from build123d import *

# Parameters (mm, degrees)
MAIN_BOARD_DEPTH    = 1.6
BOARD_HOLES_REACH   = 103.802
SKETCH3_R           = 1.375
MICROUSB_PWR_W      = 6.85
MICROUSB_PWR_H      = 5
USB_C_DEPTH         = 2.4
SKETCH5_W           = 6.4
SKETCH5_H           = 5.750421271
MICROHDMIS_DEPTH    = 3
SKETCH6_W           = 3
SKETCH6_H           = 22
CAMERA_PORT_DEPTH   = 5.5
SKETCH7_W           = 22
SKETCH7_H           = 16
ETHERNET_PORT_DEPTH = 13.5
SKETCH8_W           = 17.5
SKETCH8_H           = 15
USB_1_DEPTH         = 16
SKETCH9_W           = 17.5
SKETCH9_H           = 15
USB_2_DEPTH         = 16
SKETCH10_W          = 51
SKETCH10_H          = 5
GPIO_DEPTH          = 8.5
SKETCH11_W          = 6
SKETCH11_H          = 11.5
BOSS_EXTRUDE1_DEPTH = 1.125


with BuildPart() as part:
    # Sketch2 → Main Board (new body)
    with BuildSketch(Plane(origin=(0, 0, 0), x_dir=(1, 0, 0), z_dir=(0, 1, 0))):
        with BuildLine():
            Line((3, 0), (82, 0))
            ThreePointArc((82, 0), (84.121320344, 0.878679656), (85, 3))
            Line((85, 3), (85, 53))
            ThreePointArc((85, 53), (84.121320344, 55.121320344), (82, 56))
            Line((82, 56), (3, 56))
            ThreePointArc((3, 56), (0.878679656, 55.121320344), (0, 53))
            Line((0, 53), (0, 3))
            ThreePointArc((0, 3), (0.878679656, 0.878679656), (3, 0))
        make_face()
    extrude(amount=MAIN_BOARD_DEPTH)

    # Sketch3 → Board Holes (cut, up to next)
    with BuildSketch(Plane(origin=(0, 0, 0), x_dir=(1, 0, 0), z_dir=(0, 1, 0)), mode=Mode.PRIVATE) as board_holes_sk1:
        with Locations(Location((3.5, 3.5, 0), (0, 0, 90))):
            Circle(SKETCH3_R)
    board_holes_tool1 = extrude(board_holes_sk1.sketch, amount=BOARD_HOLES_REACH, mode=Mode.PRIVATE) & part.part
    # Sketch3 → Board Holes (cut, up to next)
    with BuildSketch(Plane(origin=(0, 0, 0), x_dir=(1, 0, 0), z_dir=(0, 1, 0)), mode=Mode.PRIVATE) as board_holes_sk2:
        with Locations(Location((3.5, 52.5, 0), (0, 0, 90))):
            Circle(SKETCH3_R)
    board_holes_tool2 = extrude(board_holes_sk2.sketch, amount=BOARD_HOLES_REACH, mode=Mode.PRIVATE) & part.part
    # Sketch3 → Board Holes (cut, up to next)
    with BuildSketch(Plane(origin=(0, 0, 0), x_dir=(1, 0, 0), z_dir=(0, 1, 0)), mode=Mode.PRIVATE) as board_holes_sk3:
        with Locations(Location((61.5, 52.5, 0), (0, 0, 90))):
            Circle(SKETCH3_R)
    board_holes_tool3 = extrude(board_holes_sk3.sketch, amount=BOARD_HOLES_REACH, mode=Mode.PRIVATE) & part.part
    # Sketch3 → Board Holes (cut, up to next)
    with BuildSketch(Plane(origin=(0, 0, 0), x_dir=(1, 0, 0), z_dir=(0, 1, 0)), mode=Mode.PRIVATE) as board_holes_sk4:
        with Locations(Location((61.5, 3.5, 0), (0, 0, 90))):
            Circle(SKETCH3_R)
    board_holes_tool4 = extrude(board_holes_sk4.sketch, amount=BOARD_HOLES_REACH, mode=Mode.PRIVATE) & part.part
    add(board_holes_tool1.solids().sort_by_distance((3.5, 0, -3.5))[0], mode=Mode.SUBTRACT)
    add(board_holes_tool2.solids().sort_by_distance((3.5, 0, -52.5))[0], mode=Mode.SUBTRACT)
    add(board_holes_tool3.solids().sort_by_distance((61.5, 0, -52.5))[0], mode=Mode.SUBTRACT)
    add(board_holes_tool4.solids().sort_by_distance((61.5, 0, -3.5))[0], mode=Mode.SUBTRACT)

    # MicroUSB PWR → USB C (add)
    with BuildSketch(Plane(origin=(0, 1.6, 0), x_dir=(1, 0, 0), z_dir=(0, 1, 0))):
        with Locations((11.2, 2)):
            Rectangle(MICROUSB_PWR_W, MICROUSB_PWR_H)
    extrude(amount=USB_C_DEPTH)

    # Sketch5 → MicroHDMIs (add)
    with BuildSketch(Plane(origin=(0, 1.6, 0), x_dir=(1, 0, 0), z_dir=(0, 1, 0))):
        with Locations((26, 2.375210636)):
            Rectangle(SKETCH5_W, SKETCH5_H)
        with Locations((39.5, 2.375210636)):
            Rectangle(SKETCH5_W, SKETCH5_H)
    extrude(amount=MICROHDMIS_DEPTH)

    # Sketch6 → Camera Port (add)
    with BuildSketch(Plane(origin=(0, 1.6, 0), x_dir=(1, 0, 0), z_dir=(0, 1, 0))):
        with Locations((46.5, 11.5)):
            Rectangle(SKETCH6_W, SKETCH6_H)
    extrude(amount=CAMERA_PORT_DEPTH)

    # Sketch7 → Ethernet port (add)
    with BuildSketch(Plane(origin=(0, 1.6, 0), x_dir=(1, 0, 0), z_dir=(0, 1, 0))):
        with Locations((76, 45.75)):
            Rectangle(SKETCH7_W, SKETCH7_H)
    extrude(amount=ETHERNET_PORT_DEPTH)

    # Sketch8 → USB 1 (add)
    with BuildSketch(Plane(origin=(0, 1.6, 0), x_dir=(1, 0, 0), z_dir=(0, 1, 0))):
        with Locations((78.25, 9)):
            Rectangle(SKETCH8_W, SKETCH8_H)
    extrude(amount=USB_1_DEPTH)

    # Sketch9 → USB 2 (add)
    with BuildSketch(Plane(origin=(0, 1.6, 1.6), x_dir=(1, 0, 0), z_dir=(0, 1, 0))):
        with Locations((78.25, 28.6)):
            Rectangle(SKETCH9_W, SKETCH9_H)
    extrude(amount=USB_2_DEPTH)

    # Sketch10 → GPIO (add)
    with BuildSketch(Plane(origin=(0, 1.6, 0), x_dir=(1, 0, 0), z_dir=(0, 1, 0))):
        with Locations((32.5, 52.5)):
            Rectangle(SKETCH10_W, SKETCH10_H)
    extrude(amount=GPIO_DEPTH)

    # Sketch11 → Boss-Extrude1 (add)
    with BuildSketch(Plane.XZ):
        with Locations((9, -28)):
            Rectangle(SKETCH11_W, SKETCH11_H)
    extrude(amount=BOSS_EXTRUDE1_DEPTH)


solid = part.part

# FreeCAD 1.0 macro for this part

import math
import FreeCAD as App
import Part
import Sketcher

doc = App.newDocument("Part")
params = doc.addObject("Spreadsheet::Sheet", "Params")
for row, (alias, value) in enumerate([
    ("sketch1_radius", "3 mm"),
    ("sketch1_width", "79 mm"),
    ("sketch1_height", "50 mm"),
    ("pad1_length", "1.6 mm"),
    ("sketch2_diameter", "2.75 mm"),
    ("sketch3_diameter", "2.75 mm"),
    ("sketch4_diameter", "2.75 mm"),
    ("sketch5_diameter", "2.75 mm"),
    ("sketch6_height", "5 mm"),
    ("sketch6_width", "6.85 mm"),
    ("pad2_length", "2.4 mm"),
    ("sketch7_width", "6.4 mm"),
    ("pad3_length", "3 mm"),
    ("sketch8_width", "3 mm"),
    ("sketch8_height", "22 mm"),
    ("pad4_length", "5.5 mm"),
    ("sketch9_width", "22 mm"),
    ("sketch9_height", "16 mm"),
    ("pad5_length", "13.5 mm"),
    ("sketch10_height", "15 mm"),
    ("sketch10_width", "17.5 mm"),
    ("pad6_length", "16 mm"),
    ("sketch11_height", "15 mm"),
    ("sketch11_width", "17.5 mm"),
    ("pad7_length", "16 mm"),
    ("sketch12_width", "51 mm"),
    ("sketch12_height", "5 mm"),
    ("pad8_length", "8.5 mm"),
    ("sketch13_width", "6 mm"),
    ("sketch13_height", "11.5 mm"),
    ("pad9_length", "1.125 mm"),
], start=1):
    params.set(f"A{row}", alias)
    params.set(f"B{row}", "=" + value)
    params.setAlias(f"B{row}", alias)

body = doc.addObject("PartDesign::Body", "Body")

sketch1 = body.newObject("Sketcher::SketchObject", "Sketch")
sketch1.AttachmentSupport = (doc.getObject("XZ_Plane"), [""])
sketch1.MapMode = "FlatFace"
sketch1.addGeometry([
    Part.LineSegment(App.Vector(3, 0, 0), App.Vector(82, 0, 0)),
    Part.ArcOfCircle(Part.Circle(App.Vector(82, -3, 0), App.Vector(0, 0, 1), 3), math.radians(0), math.radians(90)),
    Part.LineSegment(App.Vector(85, -3, 0), App.Vector(85, -53, 0)),
    Part.ArcOfCircle(Part.Circle(App.Vector(82, -53, 0), App.Vector(0, 0, 1), 3), math.radians(-90), math.radians(0)),
    Part.LineSegment(App.Vector(82, -56, 0), App.Vector(3, -56, 0)),
    Part.ArcOfCircle(Part.Circle(App.Vector(3, -53, 0), App.Vector(0, 0, 1), 3), math.radians(180), math.radians(270)),
    Part.LineSegment(App.Vector(0, -53, 0), App.Vector(0, -3, 0)),
    Part.ArcOfCircle(Part.Circle(App.Vector(3, -3, 0), App.Vector(0, 0, 1), 3), math.radians(90), math.radians(180)),
], False)
sketch1.addConstraint([
    Sketcher.Constraint("Tangent", 0, 2, 1, 2),
    Sketcher.Constraint("Tangent", 1, 1, 2, 1),
    Sketcher.Constraint("Tangent", 2, 2, 3, 2),
    Sketcher.Constraint("Tangent", 3, 1, 4, 1),
    Sketcher.Constraint("Tangent", 4, 2, 5, 2),
    Sketcher.Constraint("Tangent", 5, 1, 6, 1),
    Sketcher.Constraint("Tangent", 6, 2, 7, 2),
    Sketcher.Constraint("Tangent", 7, 1, 0, 1),
    Sketcher.Constraint("Horizontal", 0),
    Sketcher.Constraint("Vertical", 2),
    Sketcher.Constraint("Horizontal", 4),
    Sketcher.Constraint("Vertical", 6),
    Sketcher.Constraint("Equal", 1, 3),
    Sketcher.Constraint("Equal", 3, 5),
    Sketcher.Constraint("Equal", 5, 7),
    Sketcher.Constraint("PointOnObject", 0, 2, -1),
    Sketcher.Constraint("PointOnObject", 5, 1, -2),
    Sketcher.Constraint("Radius", 1, 3.0),
    Sketcher.Constraint("DistanceX", 0, 1, 0, 2, 79.0),
    Sketcher.Constraint("DistanceY", 2, 2, 2, 1, 50.0),
])
sketch1.setExpression("Constraints[17]", "Params.sketch1_radius")
sketch1.setExpression("Constraints[18]", "Params.sketch1_width")
sketch1.setExpression("Constraints[19]", "Params.sketch1_height")
pad1 = body.newObject("PartDesign::Pad", "Pad")
pad1.Profile = sketch1
pad1.setExpression("Length", "Params.pad1_length")
pad1.Reversed = True

sketch2 = body.newObject("Sketcher::SketchObject", "Sketch001")
sketch2.AttachmentSupport = (doc.getObject("XZ_Plane"), [""])
sketch2.MapMode = "FlatFace"
sketch2.addGeometry(Part.Circle(App.Vector(3.5, -3.5, 0), App.Vector(0, 0, 1), 1.4), False)
sketch2.addConstraint([
    Sketcher.Constraint("Diameter", 0, 2.75),
    Sketcher.Constraint("DistanceX", -1, 1, 0, 3, 3.5),
    Sketcher.Constraint("DistanceY", 0, 3, -1, 1, 3.5),
])
sketch2.setExpression("Constraints[0]", "Params.sketch2_diameter")
pocket1 = body.newObject("PartDesign::Pocket", "Pocket")
pocket1.Profile = sketch2
pocket1.Type = "UpToFirst"

sketch3 = body.newObject("Sketcher::SketchObject", "Sketch002")
sketch3.AttachmentSupport = (doc.getObject("XZ_Plane"), [""])
sketch3.MapMode = "FlatFace"
sketch3.addGeometry(Part.Circle(App.Vector(3.5, -52.5, 0), App.Vector(0, 0, 1), 1.4), False)
sketch3.addConstraint([
    Sketcher.Constraint("Diameter", 0, 2.75),
    Sketcher.Constraint("DistanceX", -1, 1, 0, 3, 3.5),
    Sketcher.Constraint("DistanceY", 0, 3, -1, 1, 52.5),
])
sketch3.setExpression("Constraints[0]", "Params.sketch3_diameter")
pocket2 = body.newObject("PartDesign::Pocket", "Pocket001")
pocket2.Profile = sketch3
pocket2.Type = "UpToFirst"

sketch4 = body.newObject("Sketcher::SketchObject", "Sketch003")
sketch4.AttachmentSupport = (doc.getObject("XZ_Plane"), [""])
sketch4.MapMode = "FlatFace"
sketch4.addGeometry(Part.Circle(App.Vector(61.5, -52.5, 0), App.Vector(0, 0, 1), 1.4), False)
sketch4.addConstraint([
    Sketcher.Constraint("Diameter", 0, 2.75),
    Sketcher.Constraint("DistanceX", -1, 1, 0, 3, 61.5),
    Sketcher.Constraint("DistanceY", 0, 3, -1, 1, 52.5),
])
sketch4.setExpression("Constraints[0]", "Params.sketch4_diameter")
pocket3 = body.newObject("PartDesign::Pocket", "Pocket002")
pocket3.Profile = sketch4
pocket3.Type = "UpToFirst"

sketch5 = body.newObject("Sketcher::SketchObject", "Sketch004")
sketch5.AttachmentSupport = (doc.getObject("XZ_Plane"), [""])
sketch5.MapMode = "FlatFace"
sketch5.addGeometry(Part.Circle(App.Vector(61.5, -3.5, 0), App.Vector(0, 0, 1), 1.4), False)
sketch5.addConstraint([
    Sketcher.Constraint("Diameter", 0, 2.75),
    Sketcher.Constraint("DistanceX", -1, 1, 0, 3, 61.5),
    Sketcher.Constraint("DistanceY", 0, 3, -1, 1, 3.5),
])
sketch5.setExpression("Constraints[0]", "Params.sketch5_diameter")
pocket4 = body.newObject("PartDesign::Pocket", "Pocket003")
pocket4.Profile = sketch5
pocket4.Type = "UpToFirst"

sketch6 = body.newObject("Sketcher::SketchObject", "Sketch005")
sketch6.AttachmentSupport = (doc.getObject("XZ_Plane"), [""])
sketch6.MapMode = "FlatFace"
sketch6.AttachmentOffset = App.Placement(App.Vector(0, 0, -1.6), App.Rotation())
sketch6.addGeometry([
    Part.LineSegment(App.Vector(8, -4, 0), App.Vector(8, 0, 0)),
    Part.LineSegment(App.Vector(8, 0, 0), App.Vector(15, 0, 0)),
    Part.LineSegment(App.Vector(15, 0, 0), App.Vector(15, -4, 0)),
    Part.LineSegment(App.Vector(15, -4, 0), App.Vector(8, -4, 0)),
], False)
sketch6.addConstraint([
    Sketcher.Constraint("Coincident", 0, 2, 1, 1),
    Sketcher.Constraint("Coincident", 1, 2, 2, 1),
    Sketcher.Constraint("Coincident", 2, 2, 3, 1),
    Sketcher.Constraint("Coincident", 3, 2, 0, 1),
    Sketcher.Constraint("Vertical", 0),
    Sketcher.Constraint("Horizontal", 1),
    Sketcher.Constraint("Vertical", 2),
    Sketcher.Constraint("Horizontal", 3),
    Sketcher.Constraint("DistanceY", 0, 1, 0, 2, 5.0),
    Sketcher.Constraint("DistanceX", 1, 1, 1, 2, 6.85),
    Sketcher.Constraint("DistanceY", -1, 1, 0, 2, 0.5),
    Sketcher.Constraint("DistanceX", -1, 1, 0, 2, 7.775),
])
sketch6.setExpression("Constraints[8]", "Params.sketch6_height")
sketch6.setExpression("Constraints[9]", "Params.sketch6_width")
pad2 = body.newObject("PartDesign::Pad", "Pad001")
pad2.Profile = sketch6
pad2.setExpression("Length", "Params.pad2_length")
pad2.Reversed = True

sketch7 = body.newObject("Sketcher::SketchObject", "Sketch006")
sketch7.AttachmentSupport = (doc.getObject("XZ_Plane"), [""])
sketch7.MapMode = "FlatFace"
sketch7.AttachmentOffset = App.Placement(App.Vector(0, 0, -1.6), App.Rotation())
sketch7.addGeometry([
    Part.LineSegment(App.Vector(23, -5, 0), App.Vector(23, 0, 0)),
    Part.LineSegment(App.Vector(23, 0, 0), App.Vector(29, 0, 0)),
    Part.LineSegment(App.Vector(29, 0, 0), App.Vector(29, -5, 0)),
    Part.LineSegment(App.Vector(29, -5, 0), App.Vector(23, -5, 0)),
    Part.LineSegment(App.Vector(36, -5, 0), App.Vector(36, 0, 0)),
    Part.LineSegment(App.Vector(36, 0, 0), App.Vector(43, 0, 0)),
    Part.LineSegment(App.Vector(43, 0, 0), App.Vector(43, -5, 0)),
    Part.LineSegment(App.Vector(43, -5, 0), App.Vector(36, -5, 0)),
], False)
sketch7.addConstraint([
    Sketcher.Constraint("Coincident", 0, 2, 1, 1),
    Sketcher.Constraint("Coincident", 1, 2, 2, 1),
    Sketcher.Constraint("Coincident", 2, 2, 3, 1),
    Sketcher.Constraint("Coincident", 3, 2, 0, 1),
    Sketcher.Constraint("Coincident", 4, 2, 5, 1),
    Sketcher.Constraint("Coincident", 5, 2, 6, 1),
    Sketcher.Constraint("Coincident", 6, 2, 7, 1),
    Sketcher.Constraint("Coincident", 7, 2, 4, 1),
    Sketcher.Constraint("Vertical", 0),
    Sketcher.Constraint("Horizontal", 1),
    Sketcher.Constraint("Vertical", 2),
    Sketcher.Constraint("Horizontal", 3),
    Sketcher.Constraint("Vertical", 4),
    Sketcher.Constraint("Horizontal", 5),
    Sketcher.Constraint("Vertical", 6),
    Sketcher.Constraint("Horizontal", 7),
    Sketcher.Constraint("Horizontal", 1, 2, 4, 2),
    Sketcher.Constraint("Horizontal", 3, 2, 6, 2),
    Sketcher.Constraint("Equal", 3, 5),
    Sketcher.Constraint("DistanceX", 1, 1, 1, 2, 6.4),
    Sketcher.Constraint("DistanceX", -1, 1, 0, 2, 22.8),
    Sketcher.Constraint("DistanceY", -1, 1, 0, 2, 0.5),
    Sketcher.Constraint("DistanceX", -1, 1, 4, 2, 36.3),
    Sketcher.Constraint("DistanceY", 0, 1, 0, 2, 5.750421),
])
sketch7.setExpression("Constraints[19]", "Params.sketch7_width")
pad3 = body.newObject("PartDesign::Pad", "Pad002")
pad3.Profile = sketch7
pad3.setExpression("Length", "Params.pad3_length")
pad3.Reversed = True

sketch8 = body.newObject("Sketcher::SketchObject", "Sketch007")
sketch8.AttachmentSupport = (doc.getObject("XZ_Plane"), [""])
sketch8.MapMode = "FlatFace"
sketch8.AttachmentOffset = App.Placement(App.Vector(0, 0, -1.6), App.Rotation())
sketch8.addGeometry([
    Part.LineSegment(App.Vector(45, -22.5, 0), App.Vector(45, -0.5, 0)),
    Part.LineSegment(App.Vector(45, -0.5, 0), App.Vector(48, -0.5, 0)),
    Part.LineSegment(App.Vector(48, -0.5, 0), App.Vector(48, -22.5, 0)),
    Part.LineSegment(App.Vector(48, -22.5, 0), App.Vector(45, -22.5, 0)),
], False)
sketch8.addConstraint([
    Sketcher.Constraint("Coincident", 0, 2, 1, 1),
    Sketcher.Constraint("Coincident", 1, 2, 2, 1),
    Sketcher.Constraint("Coincident", 2, 2, 3, 1),
    Sketcher.Constraint("Coincident", 3, 2, 0, 1),
    Sketcher.Constraint("Vertical", 0),
    Sketcher.Constraint("Horizontal", 1),
    Sketcher.Constraint("Vertical", 2),
    Sketcher.Constraint("Horizontal", 3),
    Sketcher.Constraint("DistanceX", 1, 1, 1, 2, 3.0),
    Sketcher.Constraint("DistanceY", 0, 1, 0, 2, 22.0),
    Sketcher.Constraint("DistanceX", -1, 1, 0, 2, 45.0),
    Sketcher.Constraint("DistanceY", 0, 2, -1, 1, 0.5),
])
sketch8.setExpression("Constraints[8]", "Params.sketch8_width")
sketch8.setExpression("Constraints[9]", "Params.sketch8_height")
pad4 = body.newObject("PartDesign::Pad", "Pad003")
pad4.Profile = sketch8
pad4.setExpression("Length", "Params.pad4_length")
pad4.Reversed = True

sketch9 = body.newObject("Sketcher::SketchObject", "Sketch008")
sketch9.AttachmentSupport = (doc.getObject("XZ_Plane"), [""])
sketch9.MapMode = "FlatFace"
sketch9.AttachmentOffset = App.Placement(App.Vector(0, 0, -1.6), App.Rotation())
sketch9.addGeometry([
    Part.LineSegment(App.Vector(65, -54, 0), App.Vector(65, -38, 0)),
    Part.LineSegment(App.Vector(65, -38, 0), App.Vector(87, -38, 0)),
    Part.LineSegment(App.Vector(87, -38, 0), App.Vector(87, -54, 0)),
    Part.LineSegment(App.Vector(87, -54, 0), App.Vector(65, -54, 0)),
], False)
sketch9.addConstraint([
    Sketcher.Constraint("Coincident", 0, 2, 1, 1),
    Sketcher.Constraint("Coincident", 1, 2, 2, 1),
    Sketcher.Constraint("Coincident", 2, 2, 3, 1),
    Sketcher.Constraint("Coincident", 3, 2, 0, 1),
    Sketcher.Constraint("Vertical", 0),
    Sketcher.Constraint("Horizontal", 1),
    Sketcher.Constraint("Vertical", 2),
    Sketcher.Constraint("Horizontal", 3),
    Sketcher.Constraint("DistanceX", 1, 1, 1, 2, 22.0),
    Sketcher.Constraint("DistanceY", 0, 1, 0, 2, 16.0),
    Sketcher.Constraint("DistanceX", -1, 1, 0, 2, 65.0),
    Sketcher.Constraint("DistanceY", 0, 2, -1, 1, 37.75),
])
sketch9.setExpression("Constraints[8]", "Params.sketch9_width")
sketch9.setExpression("Constraints[9]", "Params.sketch9_height")
pad5 = body.newObject("PartDesign::Pad", "Pad004")
pad5.Profile = sketch9
pad5.setExpression("Length", "Params.pad5_length")
pad5.Reversed = True

sketch10 = body.newObject("Sketcher::SketchObject", "Sketch009")
sketch10.AttachmentSupport = (doc.getObject("XZ_Plane"), [""])
sketch10.MapMode = "FlatFace"
sketch10.AttachmentOffset = App.Placement(App.Vector(0, 0, -1.6), App.Rotation())
sketch10.addGeometry([
    Part.LineSegment(App.Vector(70, -16, 0), App.Vector(70, -2, 0)),
    Part.LineSegment(App.Vector(70, -2, 0), App.Vector(87, -2, 0)),
    Part.LineSegment(App.Vector(87, -2, 0), App.Vector(87, -16, 0)),
    Part.LineSegment(App.Vector(87, -16, 0), App.Vector(70, -16, 0)),
], False)
sketch10.addConstraint([
    Sketcher.Constraint("Coincident", 0, 2, 1, 1),
    Sketcher.Constraint("Coincident", 1, 2, 2, 1),
    Sketcher.Constraint("Coincident", 2, 2, 3, 1),
    Sketcher.Constraint("Coincident", 3, 2, 0, 1),
    Sketcher.Constraint("Vertical", 0),
    Sketcher.Constraint("Horizontal", 1),
    Sketcher.Constraint("Vertical", 2),
    Sketcher.Constraint("Horizontal", 3),
    Sketcher.Constraint("DistanceY", 0, 1, 0, 2, 15.0),
    Sketcher.Constraint("DistanceX", 1, 1, 1, 2, 17.5),
    Sketcher.Constraint("DistanceX", -1, 1, 1, 2, 87.0),
    Sketcher.Constraint("DistanceY", 0, 2, -1, 1, 1.5),
])
sketch10.setExpression("Constraints[8]", "Params.sketch10_height")
sketch10.setExpression("Constraints[9]", "Params.sketch10_width")
pad6 = body.newObject("PartDesign::Pad", "Pad005")
pad6.Profile = sketch10
pad6.setExpression("Length", "Params.pad6_length")
pad6.Reversed = True

sketch11 = body.newObject("Sketcher::SketchObject", "Sketch010")
sketch11.AttachmentSupport = (doc.getObject("XZ_Plane"), [""])
sketch11.MapMode = "FlatFace"
sketch11.AttachmentOffset = App.Placement(App.Vector(0, 0, -1.6), App.Rotation())
sketch11.addGeometry([
    Part.LineSegment(App.Vector(70, -34, 0), App.Vector(70, -20, 0)),
    Part.LineSegment(App.Vector(70, -20, 0), App.Vector(87, -20, 0)),
    Part.LineSegment(App.Vector(87, -20, 0), App.Vector(87, -34, 0)),
    Part.LineSegment(App.Vector(87, -34, 0), App.Vector(70, -34, 0)),
], False)
sketch11.addConstraint([
    Sketcher.Constraint("Coincident", 0, 2, 1, 1),
    Sketcher.Constraint("Coincident", 1, 2, 2, 1),
    Sketcher.Constraint("Coincident", 2, 2, 3, 1),
    Sketcher.Constraint("Coincident", 3, 2, 0, 1),
    Sketcher.Constraint("Vertical", 0),
    Sketcher.Constraint("Horizontal", 1),
    Sketcher.Constraint("Vertical", 2),
    Sketcher.Constraint("Horizontal", 3),
    Sketcher.Constraint("DistanceY", 0, 1, 0, 2, 15.0),
    Sketcher.Constraint("DistanceX", 1, 1, 1, 2, 17.5),
    Sketcher.Constraint("DistanceX", -1, 1, 1, 2, 87.0),
    Sketcher.Constraint("DistanceY", 0, 2, -1, 1, 19.5),
])
sketch11.setExpression("Constraints[8]", "Params.sketch11_height")
sketch11.setExpression("Constraints[9]", "Params.sketch11_width")
pad7 = body.newObject("PartDesign::Pad", "Pad006")
pad7.Profile = sketch11
pad7.setExpression("Length", "Params.pad7_length")
pad7.Reversed = True

sketch12 = body.newObject("Sketcher::SketchObject", "Sketch011")
sketch12.AttachmentSupport = (doc.getObject("XZ_Plane"), [""])
sketch12.MapMode = "FlatFace"
sketch12.AttachmentOffset = App.Placement(App.Vector(0, 0, -1.6), App.Rotation())
sketch12.addGeometry([
    Part.LineSegment(App.Vector(7, -55, 0), App.Vector(7, -50, 0)),
    Part.LineSegment(App.Vector(7, -50, 0), App.Vector(58, -50, 0)),
    Part.LineSegment(App.Vector(58, -50, 0), App.Vector(58, -55, 0)),
    Part.LineSegment(App.Vector(58, -55, 0), App.Vector(7, -55, 0)),
], False)
sketch12.addConstraint([
    Sketcher.Constraint("Coincident", 0, 2, 1, 1),
    Sketcher.Constraint("Coincident", 1, 2, 2, 1),
    Sketcher.Constraint("Coincident", 2, 2, 3, 1),
    Sketcher.Constraint("Coincident", 3, 2, 0, 1),
    Sketcher.Constraint("Vertical", 0),
    Sketcher.Constraint("Horizontal", 1),
    Sketcher.Constraint("Vertical", 2),
    Sketcher.Constraint("Horizontal", 3),
    Sketcher.Constraint("DistanceX", 1, 1, 1, 2, 51.0),
    Sketcher.Constraint("DistanceY", 0, 1, 0, 2, 5.0),
    Sketcher.Constraint("DistanceX", -1, 1, 0, 2, 7.0),
    Sketcher.Constraint("DistanceY", 0, 2, -1, 1, 50.0),
])
sketch12.setExpression("Constraints[8]", "Params.sketch12_width")
sketch12.setExpression("Constraints[9]", "Params.sketch12_height")
pad8 = body.newObject("PartDesign::Pad", "Pad007")
pad8.Profile = sketch12
pad8.setExpression("Length", "Params.pad8_length")
pad8.Reversed = True

sketch13 = body.newObject("Sketcher::SketchObject", "Sketch012")
sketch13.AttachmentSupport = (doc.getObject("XZ_Plane"), [""])
sketch13.MapMode = "FlatFace"
sketch13.addGeometry([
    Part.LineSegment(App.Vector(6, -22, 0), App.Vector(6, -34, 0)),
    Part.LineSegment(App.Vector(6, -34, 0), App.Vector(12, -34, 0)),
    Part.LineSegment(App.Vector(12, -34, 0), App.Vector(12, -22, 0)),
    Part.LineSegment(App.Vector(12, -22, 0), App.Vector(6, -22, 0)),
], False)
sketch13.addConstraint([
    Sketcher.Constraint("Coincident", 0, 2, 1, 1),
    Sketcher.Constraint("Coincident", 1, 2, 2, 1),
    Sketcher.Constraint("Coincident", 2, 2, 3, 1),
    Sketcher.Constraint("Coincident", 3, 2, 0, 1),
    Sketcher.Constraint("Vertical", 0),
    Sketcher.Constraint("Horizontal", 1),
    Sketcher.Constraint("Vertical", 2),
    Sketcher.Constraint("Horizontal", 3),
    Sketcher.Constraint("DistanceX", 1, 1, 1, 2, 6.0),
    Sketcher.Constraint("DistanceY", 0, 2, 0, 1, 11.5),
    Sketcher.Constraint("DistanceX", -1, 1, 0, 2, 6.0),
    Sketcher.Constraint("DistanceY", 0, 2, -1, 1, 33.75),
])
sketch13.setExpression("Constraints[8]", "Params.sketch13_width")
sketch13.setExpression("Constraints[9]", "Params.sketch13_height")
pad9 = body.newObject("PartDesign::Pad", "Pad008")
pad9.Profile = sketch13
pad9.setExpression("Length", "Params.pad9_length")

doc.recompute()
